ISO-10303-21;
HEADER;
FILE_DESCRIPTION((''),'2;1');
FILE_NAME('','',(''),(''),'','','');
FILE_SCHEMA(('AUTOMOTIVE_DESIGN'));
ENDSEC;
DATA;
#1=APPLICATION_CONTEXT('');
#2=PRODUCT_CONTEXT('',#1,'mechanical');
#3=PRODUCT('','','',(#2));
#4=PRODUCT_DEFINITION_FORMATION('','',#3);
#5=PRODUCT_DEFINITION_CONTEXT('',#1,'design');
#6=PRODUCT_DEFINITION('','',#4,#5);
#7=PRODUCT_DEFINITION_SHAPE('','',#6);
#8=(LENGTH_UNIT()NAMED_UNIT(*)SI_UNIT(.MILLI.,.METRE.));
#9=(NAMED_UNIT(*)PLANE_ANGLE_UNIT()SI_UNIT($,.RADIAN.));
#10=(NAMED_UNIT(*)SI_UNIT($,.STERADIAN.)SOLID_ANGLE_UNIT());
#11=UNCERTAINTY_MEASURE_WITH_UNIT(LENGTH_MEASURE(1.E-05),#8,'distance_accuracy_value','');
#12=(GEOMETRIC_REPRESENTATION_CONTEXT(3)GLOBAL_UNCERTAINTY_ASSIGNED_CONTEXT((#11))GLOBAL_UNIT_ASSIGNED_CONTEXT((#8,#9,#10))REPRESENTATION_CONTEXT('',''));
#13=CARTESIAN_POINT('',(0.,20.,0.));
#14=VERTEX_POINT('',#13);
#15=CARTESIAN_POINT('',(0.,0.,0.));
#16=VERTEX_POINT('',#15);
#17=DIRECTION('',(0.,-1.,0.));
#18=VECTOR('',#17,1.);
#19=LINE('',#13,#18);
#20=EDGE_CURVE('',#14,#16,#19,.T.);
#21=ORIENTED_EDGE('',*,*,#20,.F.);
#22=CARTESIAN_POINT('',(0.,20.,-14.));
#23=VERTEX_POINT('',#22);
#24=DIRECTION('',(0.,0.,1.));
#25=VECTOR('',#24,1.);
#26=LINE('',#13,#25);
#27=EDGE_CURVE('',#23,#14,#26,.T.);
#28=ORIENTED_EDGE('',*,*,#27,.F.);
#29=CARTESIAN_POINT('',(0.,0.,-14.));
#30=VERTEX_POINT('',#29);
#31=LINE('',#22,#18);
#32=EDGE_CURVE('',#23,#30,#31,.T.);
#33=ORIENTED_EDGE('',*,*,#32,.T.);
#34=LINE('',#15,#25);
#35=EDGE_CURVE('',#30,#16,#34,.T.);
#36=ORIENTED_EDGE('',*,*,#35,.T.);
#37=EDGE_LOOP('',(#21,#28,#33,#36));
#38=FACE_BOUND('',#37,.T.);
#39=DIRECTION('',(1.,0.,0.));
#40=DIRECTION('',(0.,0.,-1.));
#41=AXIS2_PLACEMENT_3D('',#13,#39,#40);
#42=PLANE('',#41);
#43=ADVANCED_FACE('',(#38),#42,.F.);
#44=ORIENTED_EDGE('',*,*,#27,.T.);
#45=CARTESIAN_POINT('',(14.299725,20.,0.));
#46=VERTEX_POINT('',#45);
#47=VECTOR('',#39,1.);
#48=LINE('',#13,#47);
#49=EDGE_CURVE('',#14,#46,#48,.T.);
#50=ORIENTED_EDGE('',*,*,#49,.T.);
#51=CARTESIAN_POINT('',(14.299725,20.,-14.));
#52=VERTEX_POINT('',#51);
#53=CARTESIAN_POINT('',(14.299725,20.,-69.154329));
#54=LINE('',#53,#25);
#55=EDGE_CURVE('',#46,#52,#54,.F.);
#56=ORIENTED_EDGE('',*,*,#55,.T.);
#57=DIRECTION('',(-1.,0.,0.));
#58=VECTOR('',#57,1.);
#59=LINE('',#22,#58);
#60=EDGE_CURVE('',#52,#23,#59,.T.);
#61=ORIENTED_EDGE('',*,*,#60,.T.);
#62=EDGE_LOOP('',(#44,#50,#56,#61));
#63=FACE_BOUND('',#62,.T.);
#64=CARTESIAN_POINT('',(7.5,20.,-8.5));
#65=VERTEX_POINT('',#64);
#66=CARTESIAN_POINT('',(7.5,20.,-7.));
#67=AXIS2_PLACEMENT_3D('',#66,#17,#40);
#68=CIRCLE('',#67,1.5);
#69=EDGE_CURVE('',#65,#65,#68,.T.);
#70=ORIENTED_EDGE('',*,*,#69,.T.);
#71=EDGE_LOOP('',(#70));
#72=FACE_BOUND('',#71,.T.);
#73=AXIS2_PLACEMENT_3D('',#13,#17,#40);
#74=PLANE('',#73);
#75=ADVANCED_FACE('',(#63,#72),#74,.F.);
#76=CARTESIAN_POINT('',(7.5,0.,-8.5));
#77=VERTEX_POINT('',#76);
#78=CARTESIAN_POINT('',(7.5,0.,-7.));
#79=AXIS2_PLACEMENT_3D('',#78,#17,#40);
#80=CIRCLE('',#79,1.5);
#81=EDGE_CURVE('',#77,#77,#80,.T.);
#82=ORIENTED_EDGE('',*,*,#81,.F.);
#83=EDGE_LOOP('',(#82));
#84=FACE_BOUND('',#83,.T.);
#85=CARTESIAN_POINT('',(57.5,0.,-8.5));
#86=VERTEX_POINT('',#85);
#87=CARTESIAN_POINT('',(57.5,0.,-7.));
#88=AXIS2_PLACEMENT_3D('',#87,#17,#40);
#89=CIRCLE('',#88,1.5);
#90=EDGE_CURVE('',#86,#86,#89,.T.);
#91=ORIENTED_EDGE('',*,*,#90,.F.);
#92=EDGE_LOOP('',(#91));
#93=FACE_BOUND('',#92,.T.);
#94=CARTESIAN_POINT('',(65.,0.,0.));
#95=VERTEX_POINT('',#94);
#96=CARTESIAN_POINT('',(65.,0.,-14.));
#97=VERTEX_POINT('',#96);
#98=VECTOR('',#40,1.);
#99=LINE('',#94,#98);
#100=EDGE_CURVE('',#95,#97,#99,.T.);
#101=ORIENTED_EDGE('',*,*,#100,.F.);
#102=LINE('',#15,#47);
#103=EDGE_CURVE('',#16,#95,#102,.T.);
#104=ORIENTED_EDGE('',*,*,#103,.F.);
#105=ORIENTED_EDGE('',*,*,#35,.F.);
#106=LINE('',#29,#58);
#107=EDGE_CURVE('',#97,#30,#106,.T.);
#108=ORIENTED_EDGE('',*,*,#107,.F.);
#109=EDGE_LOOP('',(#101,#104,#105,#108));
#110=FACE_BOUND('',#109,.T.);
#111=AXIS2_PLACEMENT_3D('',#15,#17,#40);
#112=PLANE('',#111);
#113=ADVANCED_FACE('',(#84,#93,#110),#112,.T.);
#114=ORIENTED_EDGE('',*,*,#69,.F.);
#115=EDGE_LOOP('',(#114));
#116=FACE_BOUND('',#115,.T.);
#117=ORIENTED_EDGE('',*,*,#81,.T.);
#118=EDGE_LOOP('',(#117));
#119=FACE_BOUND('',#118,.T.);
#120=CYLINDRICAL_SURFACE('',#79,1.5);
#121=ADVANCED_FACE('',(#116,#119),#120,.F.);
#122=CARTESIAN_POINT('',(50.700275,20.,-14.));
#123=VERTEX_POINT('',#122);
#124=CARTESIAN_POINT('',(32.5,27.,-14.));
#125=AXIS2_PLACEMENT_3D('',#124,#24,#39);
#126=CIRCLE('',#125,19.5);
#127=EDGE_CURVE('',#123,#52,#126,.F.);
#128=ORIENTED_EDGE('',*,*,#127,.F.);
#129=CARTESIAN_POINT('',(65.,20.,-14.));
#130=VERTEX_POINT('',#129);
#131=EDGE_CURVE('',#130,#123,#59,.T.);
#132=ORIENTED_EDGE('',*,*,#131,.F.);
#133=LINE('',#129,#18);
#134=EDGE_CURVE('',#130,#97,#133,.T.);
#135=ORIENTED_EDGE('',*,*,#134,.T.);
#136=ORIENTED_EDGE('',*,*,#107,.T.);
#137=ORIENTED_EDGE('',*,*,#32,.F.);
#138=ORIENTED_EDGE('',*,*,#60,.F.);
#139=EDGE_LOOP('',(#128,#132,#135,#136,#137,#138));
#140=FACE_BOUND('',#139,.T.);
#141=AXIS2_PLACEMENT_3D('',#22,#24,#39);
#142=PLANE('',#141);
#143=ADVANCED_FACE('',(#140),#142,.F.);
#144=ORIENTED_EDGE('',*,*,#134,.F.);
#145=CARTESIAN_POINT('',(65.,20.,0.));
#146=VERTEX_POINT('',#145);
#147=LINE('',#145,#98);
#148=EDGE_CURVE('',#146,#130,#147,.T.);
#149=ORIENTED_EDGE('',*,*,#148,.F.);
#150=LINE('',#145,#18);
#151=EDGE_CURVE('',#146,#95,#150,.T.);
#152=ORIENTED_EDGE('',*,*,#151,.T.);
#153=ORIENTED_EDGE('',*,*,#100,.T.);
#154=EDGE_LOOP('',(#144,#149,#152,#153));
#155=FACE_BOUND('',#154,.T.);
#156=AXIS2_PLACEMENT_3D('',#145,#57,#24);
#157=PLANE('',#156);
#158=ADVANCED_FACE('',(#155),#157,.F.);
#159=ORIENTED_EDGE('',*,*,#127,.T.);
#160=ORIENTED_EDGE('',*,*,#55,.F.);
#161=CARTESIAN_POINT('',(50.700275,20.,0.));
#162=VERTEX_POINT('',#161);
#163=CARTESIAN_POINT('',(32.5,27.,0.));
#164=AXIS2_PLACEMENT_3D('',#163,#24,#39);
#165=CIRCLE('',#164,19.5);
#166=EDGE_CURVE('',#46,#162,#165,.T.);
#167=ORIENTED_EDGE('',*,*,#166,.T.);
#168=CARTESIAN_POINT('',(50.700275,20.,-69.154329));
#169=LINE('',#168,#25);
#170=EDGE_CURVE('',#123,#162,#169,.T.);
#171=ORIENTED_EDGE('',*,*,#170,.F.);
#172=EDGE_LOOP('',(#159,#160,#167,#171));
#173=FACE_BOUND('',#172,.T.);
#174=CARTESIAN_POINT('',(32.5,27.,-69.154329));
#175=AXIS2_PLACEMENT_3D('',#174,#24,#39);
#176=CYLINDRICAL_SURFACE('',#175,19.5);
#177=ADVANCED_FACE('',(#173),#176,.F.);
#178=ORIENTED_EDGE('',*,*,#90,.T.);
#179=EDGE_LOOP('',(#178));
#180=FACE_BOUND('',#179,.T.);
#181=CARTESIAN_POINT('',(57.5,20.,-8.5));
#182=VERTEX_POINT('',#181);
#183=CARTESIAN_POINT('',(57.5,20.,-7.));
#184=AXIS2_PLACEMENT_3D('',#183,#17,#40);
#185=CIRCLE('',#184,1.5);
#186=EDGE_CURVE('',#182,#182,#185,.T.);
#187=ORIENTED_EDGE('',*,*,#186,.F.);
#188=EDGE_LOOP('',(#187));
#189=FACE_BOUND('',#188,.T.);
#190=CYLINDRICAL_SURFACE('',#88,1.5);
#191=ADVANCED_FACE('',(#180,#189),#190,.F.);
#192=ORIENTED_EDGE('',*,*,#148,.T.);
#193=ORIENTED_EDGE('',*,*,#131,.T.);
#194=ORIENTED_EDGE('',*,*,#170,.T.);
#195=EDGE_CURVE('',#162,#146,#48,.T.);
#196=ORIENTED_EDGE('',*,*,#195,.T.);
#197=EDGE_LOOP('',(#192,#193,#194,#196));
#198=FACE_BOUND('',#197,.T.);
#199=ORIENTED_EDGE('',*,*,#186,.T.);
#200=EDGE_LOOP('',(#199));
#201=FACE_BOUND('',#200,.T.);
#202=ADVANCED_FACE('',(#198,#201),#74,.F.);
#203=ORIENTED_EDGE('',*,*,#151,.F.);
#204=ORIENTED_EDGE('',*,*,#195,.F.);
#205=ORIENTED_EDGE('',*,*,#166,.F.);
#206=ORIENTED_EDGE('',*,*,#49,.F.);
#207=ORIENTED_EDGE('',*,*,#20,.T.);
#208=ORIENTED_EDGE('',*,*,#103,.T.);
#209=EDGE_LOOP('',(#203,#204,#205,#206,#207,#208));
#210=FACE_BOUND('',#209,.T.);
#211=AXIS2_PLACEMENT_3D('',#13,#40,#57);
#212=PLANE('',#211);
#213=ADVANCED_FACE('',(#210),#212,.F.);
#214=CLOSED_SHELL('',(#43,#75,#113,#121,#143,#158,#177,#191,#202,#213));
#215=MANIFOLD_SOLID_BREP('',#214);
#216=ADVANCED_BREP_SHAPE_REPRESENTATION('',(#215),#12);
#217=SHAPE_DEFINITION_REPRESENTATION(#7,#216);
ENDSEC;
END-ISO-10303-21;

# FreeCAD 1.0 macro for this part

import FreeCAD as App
import Part
import Sketcher
Q = App.Units.Quantity


def add_polygon(sketch, points):
    """Adds a closed chain of lines whose ends are joined by coincident constraints."""
    first, n = sketch.GeometryCount, len(points)
    for a, b in zip(points, points[1:] + points[:1]):
        sketch.addGeometry(Part.LineSegment(App.Vector(*a, 0), App.Vector(*b, 0)), False)
    for i in range(n):
        sketch.addConstraint(Sketcher.Constraint("Coincident", first + i, 2, first + (i + 1) % n, 1))

doc = App.newDocument("Part")
body = doc.addObject("PartDesign::Body", "Body")

# Sketch on XZ plane
sketch1 = body.newObject("Sketcher::SketchObject", "Sketch")
sketch1.AttachmentSupport = (doc.getObject("XZ_Plane"), [""])
sketch1.MapMode = "FlatFace"
add_polygon(sketch1, [(0, -14), (0, 0), (65, 0), (65, -14)])  # lines 0-3
sketch1.addConstraint([
    Sketcher.Constraint("Vertical", 0),
    Sketcher.Constraint("Horizontal", 1),
    Sketcher.Constraint("Vertical", 2),
    Sketcher.Constraint("Horizontal", 3),
    Sketcher.Constraint("Coincident", 0, 2, -1, 1),
    Sketcher.Constraint("DistanceX", 1, 1, 1, 2, Q("65 mm")),
    Sketcher.Constraint("DistanceY", 0, 1, 0, 2, Q("14 mm")),
])
pad1 = body.newObject("PartDesign::Pad", "Pad")
pad1.Profile = sketch1
pad1.Length = 20
pad1.Reversed = True

# Sketch on XY plane
sketch2 = body.newObject("Sketcher::SketchObject", "Sketch001")
sketch2.AttachmentSupport = (doc.getObject("XY_Plane"), [""])
sketch2.MapMode = "FlatFace"
sketch2.addGeometry(Part.Circle(App.Vector(32, 27, 0), App.Vector(0, 0, 1), 20), False)
sketch2.addConstraint([
    Sketcher.Constraint("Diameter", 0, Q("39 mm")),
    Sketcher.Constraint("DistanceY", -1, 1, 0, 3, Q("27 mm")),
    Sketcher.Constraint("DistanceX", -1, 1, 0, 3, Q("32.5 mm")),
])
pocket1 = body.newObject("PartDesign::Pocket", "Pocket")
pocket1.Profile = sketch2
pocket1.Length = 14

# Sketch on XZ plane
sketch3 = body.newObject("Sketcher::SketchObject", "Sketch002")
sketch3.AttachmentSupport = (doc.getObject("XZ_Plane"), [""])
sketch3.MapMode = "FlatFace"
sketch3.addGeometry([
    Part.Circle(App.Vector(57.5, -7, 0), App.Vector(0, 0, 1), 1.5),
    Part.Circle(App.Vector(7.5, -7, 0), App.Vector(0, 0, 1), 1.5),
], False)
sketch3.addConstraint([
    Sketcher.Constraint("Equal", 0, 1),
    Sketcher.Constraint("Horizontal", 0, 3, 1, 3),
    Sketcher.Constraint("Diameter", 0, Q("3 mm")),
    Sketcher.Constraint("DistanceY", 0, 3, -1, 1, Q("7 mm")),
    Sketcher.Constraint("DistanceX", 1, 3, 0, 3, Q("50 mm")),
    Sketcher.Constraint("DistanceX", -1, 1, 0, 3, Q("57.5 mm")),
])
doc.recompute()
hole = body.newObject("PartDesign::Hole", "Hole")
hole.Profile = sketch3
hole.ThreadType = "None"
hole.Diameter = 3
hole.DepthType = "ThroughAll"

doc.recompute()
